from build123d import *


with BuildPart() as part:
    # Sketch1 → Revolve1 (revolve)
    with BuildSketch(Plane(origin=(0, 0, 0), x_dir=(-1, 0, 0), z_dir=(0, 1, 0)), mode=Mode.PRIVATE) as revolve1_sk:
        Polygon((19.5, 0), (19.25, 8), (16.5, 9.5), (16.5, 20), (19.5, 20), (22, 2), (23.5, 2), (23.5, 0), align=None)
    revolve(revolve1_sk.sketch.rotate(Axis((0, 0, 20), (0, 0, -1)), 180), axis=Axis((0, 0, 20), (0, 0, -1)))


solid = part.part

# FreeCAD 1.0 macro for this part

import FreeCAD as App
import Part
import Sketcher
from FreeCAD import Vector

doc = App.newDocument("Part")
body = doc.addObject("PartDesign::Body", "Body")

# Sketch on XZ plane
sketch1 = doc.addObject("Sketcher::SketchObject", "Sketch")
body.addObject(sketch1)
sketch1.AttachmentSupport = (doc.XZ_Plane, [""])
sketch1.MapMode = "FlatFace"
sketch1.addGeometry([
    Part.LineSegment(Vector(-19.25, 8, 0), Vector(-19.5, 0, 0)),  # 0
    Part.LineSegment(Vector(-19.5, 0, 0), Vector(-23.5, 0, 0)),  # 1
    Part.LineSegment(Vector(-23.5, 0, 0), Vector(-23.5, 2, 0)),  # 2
    Part.LineSegment(Vector(-23.5, 2, 0), Vector(-22, 2, 0)),  # 3
    Part.LineSegment(Vector(-22, 2, 0), Vector(-19.5, 20, 0)),  # 4
    Part.LineSegment(Vector(-19.5, 20, 0), Vector(-16.5, 20, 0)),  # 5
    Part.LineSegment(Vector(-16.5, 20, 0), Vector(-16.5, 9.5, 0)),  # 6
    Part.LineSegment(Vector(-16.5, 9.5, 0), Vector(-19.25, 8, 0)),  # 7
], False)
sketch1.addConstraint([
    Sketcher.Constraint("Coincident", 0, 2, 1, 1),
    Sketcher.Constraint("Coincident", 1, 2, 2, 1),
    Sketcher.Constraint("Coincident", 2, 2, 3, 1),
    Sketcher.Constraint("Coincident", 3, 2, 4, 1),
    Sketcher.Constraint("Coincident", 4, 2, 5, 1),
    Sketcher.Constraint("Coincident", 5, 2, 6, 1),
    Sketcher.Constraint("Coincident", 6, 2, 7, 1),
    Sketcher.Constraint("Coincident", 7, 2, 0, 1),
    Sketcher.Constraint("Horizontal", 1),
    Sketcher.Constraint("Vertical", 2),
    Sketcher.Constraint("Horizontal", 3),
    Sketcher.Constraint("Horizontal", 5),
    Sketcher.Constraint("Vertical", 6),
    Sketcher.Constraint("PointOnObject", 0, 2, -1),
    Sketcher.Constraint("Vertical", 0, 2, 4, 2),
    Sketcher.Constraint("DistanceX", 1, 2, 1, 1, 4.0),
    Sketcher.Constraint("DistanceX", 5, 1, 5, 2, 3.0),
    Sketcher.Constraint("DistanceY", 2, 1, 2, 2, 2.0),
    Sketcher.Constraint("DistanceX", 3, 1, 3, 2, 1.5),
    Sketcher.Constraint("DistanceY", 6, 2, 6, 1, 10.5),
    Sketcher.Constraint("DistanceX", 3, 2, -1, 1, 22.0),
    Sketcher.Constraint("DistanceY", -1, 1, 4, 2, 20.0),
    Sketcher.Constraint("DistanceY", -1, 1, 7, 2, 8.0),
    Sketcher.Constraint("DistanceX", 7, 2, -1, 1, 19.25),
])
revolution = doc.addObject("PartDesign::Revolution", "Revolution")
body.addObject(revolution)
revolution.Profile = sketch1
revolution.ReferenceAxis = (sketch1, ["V_Axis"])
revolution.Angle = 360

doc.recompute()
